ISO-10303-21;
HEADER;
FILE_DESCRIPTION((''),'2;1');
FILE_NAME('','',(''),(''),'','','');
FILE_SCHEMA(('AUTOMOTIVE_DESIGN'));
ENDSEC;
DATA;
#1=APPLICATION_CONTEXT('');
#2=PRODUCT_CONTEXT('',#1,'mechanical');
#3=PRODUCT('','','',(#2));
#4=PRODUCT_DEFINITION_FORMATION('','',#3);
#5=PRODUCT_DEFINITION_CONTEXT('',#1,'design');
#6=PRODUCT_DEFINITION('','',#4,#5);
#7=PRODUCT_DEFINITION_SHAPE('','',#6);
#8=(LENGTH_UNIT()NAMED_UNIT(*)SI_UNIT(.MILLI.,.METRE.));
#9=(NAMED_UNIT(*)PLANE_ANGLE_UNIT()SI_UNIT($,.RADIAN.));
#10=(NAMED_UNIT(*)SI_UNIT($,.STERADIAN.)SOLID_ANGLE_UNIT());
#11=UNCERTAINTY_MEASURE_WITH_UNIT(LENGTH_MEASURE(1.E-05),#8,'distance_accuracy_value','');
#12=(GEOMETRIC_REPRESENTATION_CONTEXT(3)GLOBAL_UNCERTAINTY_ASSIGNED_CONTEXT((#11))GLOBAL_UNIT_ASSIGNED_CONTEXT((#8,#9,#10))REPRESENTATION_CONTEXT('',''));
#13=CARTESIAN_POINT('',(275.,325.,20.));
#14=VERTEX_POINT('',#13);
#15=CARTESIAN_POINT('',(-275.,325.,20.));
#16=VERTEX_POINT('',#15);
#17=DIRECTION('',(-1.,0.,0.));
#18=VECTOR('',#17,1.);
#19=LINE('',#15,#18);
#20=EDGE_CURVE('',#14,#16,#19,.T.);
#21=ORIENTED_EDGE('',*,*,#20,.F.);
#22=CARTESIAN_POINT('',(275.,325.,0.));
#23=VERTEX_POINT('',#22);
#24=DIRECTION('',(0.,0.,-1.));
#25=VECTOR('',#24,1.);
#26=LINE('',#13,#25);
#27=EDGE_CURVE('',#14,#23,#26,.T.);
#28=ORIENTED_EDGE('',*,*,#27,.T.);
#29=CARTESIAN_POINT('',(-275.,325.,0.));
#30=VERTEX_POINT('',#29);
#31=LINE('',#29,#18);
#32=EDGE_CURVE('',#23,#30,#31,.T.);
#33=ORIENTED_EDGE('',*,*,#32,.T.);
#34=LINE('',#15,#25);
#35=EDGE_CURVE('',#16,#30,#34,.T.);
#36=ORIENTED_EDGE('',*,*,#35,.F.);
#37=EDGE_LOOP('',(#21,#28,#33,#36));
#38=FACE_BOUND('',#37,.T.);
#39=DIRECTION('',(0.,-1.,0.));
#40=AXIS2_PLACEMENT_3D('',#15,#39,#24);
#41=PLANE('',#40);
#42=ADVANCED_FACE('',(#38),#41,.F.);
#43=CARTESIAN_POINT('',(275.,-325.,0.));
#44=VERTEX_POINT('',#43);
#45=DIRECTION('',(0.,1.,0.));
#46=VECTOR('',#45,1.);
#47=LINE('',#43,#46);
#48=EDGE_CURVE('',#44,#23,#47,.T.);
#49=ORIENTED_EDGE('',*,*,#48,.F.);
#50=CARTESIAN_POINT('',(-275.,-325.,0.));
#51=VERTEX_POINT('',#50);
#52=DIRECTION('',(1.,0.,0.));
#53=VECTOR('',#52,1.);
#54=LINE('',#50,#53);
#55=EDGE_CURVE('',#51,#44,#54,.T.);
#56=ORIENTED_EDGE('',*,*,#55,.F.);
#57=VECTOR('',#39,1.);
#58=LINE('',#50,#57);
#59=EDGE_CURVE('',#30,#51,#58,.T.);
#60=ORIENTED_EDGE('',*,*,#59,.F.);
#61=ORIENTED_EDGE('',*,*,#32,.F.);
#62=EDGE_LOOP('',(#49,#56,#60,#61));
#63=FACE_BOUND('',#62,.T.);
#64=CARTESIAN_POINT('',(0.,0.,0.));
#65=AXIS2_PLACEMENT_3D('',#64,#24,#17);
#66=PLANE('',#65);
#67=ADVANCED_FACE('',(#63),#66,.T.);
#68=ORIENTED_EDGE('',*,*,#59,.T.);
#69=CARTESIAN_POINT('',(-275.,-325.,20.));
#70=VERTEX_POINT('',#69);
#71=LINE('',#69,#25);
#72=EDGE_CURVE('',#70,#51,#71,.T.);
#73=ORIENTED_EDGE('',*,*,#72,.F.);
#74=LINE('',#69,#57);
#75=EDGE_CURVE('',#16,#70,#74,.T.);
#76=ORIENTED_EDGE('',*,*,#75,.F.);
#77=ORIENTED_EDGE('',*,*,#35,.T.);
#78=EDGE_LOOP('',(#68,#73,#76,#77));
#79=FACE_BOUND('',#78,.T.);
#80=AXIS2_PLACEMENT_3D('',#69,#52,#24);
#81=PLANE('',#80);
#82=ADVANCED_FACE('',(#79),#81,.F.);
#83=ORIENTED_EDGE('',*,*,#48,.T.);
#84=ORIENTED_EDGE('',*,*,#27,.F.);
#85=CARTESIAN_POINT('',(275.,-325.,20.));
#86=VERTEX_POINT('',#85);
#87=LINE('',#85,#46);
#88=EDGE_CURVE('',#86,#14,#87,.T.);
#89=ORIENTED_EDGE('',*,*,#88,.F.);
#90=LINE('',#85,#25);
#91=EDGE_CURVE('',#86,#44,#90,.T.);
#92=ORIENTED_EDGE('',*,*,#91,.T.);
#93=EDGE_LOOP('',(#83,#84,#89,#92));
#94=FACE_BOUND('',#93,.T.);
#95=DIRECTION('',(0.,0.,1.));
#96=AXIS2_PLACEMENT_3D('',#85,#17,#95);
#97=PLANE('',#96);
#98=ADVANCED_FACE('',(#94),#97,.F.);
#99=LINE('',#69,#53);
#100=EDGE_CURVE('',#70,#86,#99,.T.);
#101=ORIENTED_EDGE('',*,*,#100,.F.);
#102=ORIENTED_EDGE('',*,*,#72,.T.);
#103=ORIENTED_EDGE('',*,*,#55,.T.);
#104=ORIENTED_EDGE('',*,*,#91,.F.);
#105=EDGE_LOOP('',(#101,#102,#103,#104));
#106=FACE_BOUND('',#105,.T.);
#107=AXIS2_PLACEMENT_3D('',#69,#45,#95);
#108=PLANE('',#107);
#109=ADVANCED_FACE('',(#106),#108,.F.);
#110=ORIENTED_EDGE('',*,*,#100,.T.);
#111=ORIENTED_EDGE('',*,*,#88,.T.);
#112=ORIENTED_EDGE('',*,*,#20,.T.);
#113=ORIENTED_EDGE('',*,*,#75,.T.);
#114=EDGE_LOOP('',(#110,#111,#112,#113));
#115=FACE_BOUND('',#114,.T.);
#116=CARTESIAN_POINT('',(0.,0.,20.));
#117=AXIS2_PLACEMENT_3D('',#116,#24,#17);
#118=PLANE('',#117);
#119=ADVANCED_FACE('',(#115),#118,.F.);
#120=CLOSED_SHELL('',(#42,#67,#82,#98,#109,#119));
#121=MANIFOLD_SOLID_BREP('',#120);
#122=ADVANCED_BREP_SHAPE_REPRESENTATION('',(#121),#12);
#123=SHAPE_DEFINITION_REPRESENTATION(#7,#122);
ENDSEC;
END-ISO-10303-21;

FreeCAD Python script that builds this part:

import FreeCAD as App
import Part
import Sketcher

V = App.Vector


def add_polygon(sketch, points):
    """Adds a closed chain of lines whose ends are joined by coincident constraints."""
    first, n = sketch.GeometryCount, len(points)
    for a, b in zip(points, points[1:] + points[:1]):
        sketch.addGeometry(Part.LineSegment(App.Vector(*a, 0), App.Vector(*b, 0)), False)
    for i in range(n):
        sketch.addConstraint(Sketcher.Constraint("Coincident", first + i, 2, first + (i + 1) % n, 1))

doc = App.newDocument("Part")
body = doc.addObject("PartDesign::Body", "Body")

# Sketch on XY plane
sketch1 = body.newObject("Sketcher::SketchObject", "Sketch")
sketch1.AttachmentSupport = (doc.getObject("XY_Plane"), [""])
sketch1.MapMode = "FlatFace"
add_polygon(sketch1, [(-275, 325), (-275, -325), (275, -325), (275, 325)])  # lines 0-3
sketch1.addConstraint([
    Sketcher.Constraint("Vertical", 0),
    Sketcher.Constraint("Horizontal", 1),
    Sketcher.Constraint("Vertical", 2),
    Sketcher.Constraint("Horizontal", 3),
    Sketcher.Constraint("Symmetric", 0, 2, 2, 2, -1, 1),
    Sketcher.Constraint("DistanceX", 1, 1, 1, 2, 550.0),
    Sketcher.Constraint("DistanceY", 0, 2, 0, 1, 650.0),
])
pad1 = body.newObject("PartDesign::Pad", "Pad")
pad1.Profile = sketch1
pad1.Length = 20

doc.recompute()
